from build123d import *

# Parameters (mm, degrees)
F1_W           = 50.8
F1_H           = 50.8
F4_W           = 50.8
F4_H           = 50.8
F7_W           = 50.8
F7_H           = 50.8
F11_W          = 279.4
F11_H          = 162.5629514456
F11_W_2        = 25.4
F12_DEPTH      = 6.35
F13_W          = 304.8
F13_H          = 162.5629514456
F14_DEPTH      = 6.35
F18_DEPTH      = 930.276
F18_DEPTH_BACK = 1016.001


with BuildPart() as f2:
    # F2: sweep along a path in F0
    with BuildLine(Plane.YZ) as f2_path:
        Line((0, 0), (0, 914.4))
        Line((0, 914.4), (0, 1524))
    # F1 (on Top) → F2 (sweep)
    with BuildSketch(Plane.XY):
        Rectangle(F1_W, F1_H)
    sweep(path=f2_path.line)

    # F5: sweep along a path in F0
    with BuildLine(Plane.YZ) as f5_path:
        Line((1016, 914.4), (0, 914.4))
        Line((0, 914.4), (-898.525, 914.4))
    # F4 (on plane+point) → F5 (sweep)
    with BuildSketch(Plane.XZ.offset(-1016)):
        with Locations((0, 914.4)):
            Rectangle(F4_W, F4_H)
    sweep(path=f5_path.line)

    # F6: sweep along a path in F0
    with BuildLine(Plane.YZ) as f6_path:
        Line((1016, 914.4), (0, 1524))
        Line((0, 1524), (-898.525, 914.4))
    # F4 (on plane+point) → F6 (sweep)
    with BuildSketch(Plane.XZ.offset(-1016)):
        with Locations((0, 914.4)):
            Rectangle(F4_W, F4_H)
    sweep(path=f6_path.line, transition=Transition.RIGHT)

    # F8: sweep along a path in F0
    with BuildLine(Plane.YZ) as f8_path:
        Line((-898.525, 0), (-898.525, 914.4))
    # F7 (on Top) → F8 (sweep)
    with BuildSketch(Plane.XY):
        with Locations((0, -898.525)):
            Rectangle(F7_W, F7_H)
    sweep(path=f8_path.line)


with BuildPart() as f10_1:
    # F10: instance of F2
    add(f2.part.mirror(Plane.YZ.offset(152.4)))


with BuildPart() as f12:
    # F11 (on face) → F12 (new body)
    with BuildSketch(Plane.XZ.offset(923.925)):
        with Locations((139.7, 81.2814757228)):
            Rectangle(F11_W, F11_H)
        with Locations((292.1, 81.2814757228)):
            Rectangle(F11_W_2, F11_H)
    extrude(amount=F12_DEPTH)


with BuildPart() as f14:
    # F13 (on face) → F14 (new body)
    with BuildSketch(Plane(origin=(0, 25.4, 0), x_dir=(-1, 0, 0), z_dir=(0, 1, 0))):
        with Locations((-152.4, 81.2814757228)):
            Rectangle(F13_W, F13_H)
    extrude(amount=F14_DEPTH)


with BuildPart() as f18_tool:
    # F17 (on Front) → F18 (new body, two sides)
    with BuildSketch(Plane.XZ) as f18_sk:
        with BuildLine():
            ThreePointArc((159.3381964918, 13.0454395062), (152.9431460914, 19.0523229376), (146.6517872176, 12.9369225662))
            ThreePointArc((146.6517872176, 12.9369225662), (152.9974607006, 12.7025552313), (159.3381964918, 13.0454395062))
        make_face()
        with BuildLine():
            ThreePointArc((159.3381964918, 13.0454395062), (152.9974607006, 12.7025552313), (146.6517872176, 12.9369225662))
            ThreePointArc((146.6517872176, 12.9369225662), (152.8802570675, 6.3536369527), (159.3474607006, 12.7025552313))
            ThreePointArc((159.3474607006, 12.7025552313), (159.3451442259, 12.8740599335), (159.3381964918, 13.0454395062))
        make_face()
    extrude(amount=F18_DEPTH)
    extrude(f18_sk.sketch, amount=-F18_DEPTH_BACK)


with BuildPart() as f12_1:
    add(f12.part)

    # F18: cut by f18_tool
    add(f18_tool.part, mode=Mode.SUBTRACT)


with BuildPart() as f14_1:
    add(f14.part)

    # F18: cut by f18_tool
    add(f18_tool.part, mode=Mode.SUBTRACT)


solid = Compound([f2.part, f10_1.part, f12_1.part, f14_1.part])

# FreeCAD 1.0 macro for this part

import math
import FreeCAD as App
import Part
import Sketcher
from FreeCAD import Vector
Q = App.Units.Quantity


def add_polygon(sketch, points):
    """Adds a closed chain of lines whose ends are joined by coincident constraints."""
    first, n = sketch.GeometryCount, len(points)
    for a, b in zip(points, points[1:] + points[:1]):
        sketch.addGeometry(Part.LineSegment(App.Vector(*a, 0), App.Vector(*b, 0)), False)
    for i in range(n):
        sketch.addConstraint(Sketcher.Constraint("Coincident", first + i, 2, first + (i + 1) % n, 1))

doc = App.newDocument("Part")
body = doc.addObject("PartDesign::Body", "Body")

sketch1 = body.newObject("Sketcher::SketchObject", "Sketch")
sketch1.AttachmentSupport = (doc.getObject("XY_Plane"), [""])
sketch1.MapMode = "FlatFace"
add_polygon(sketch1, [(-25, 25), (-25, -25), (25, -25), (25, 25)])
sketch1.addConstraint(Sketcher.Constraint("Vertical", 0))
sketch1.addConstraint(Sketcher.Constraint("Horizontal", 1))
sketch1.addConstraint(Sketcher.Constraint("Vertical", 2))
sketch1.addConstraint(Sketcher.Constraint("Horizontal", 3))
sketch1.addConstraint(Sketcher.Constraint("Symmetric", 0, 2, 2, 2, -1, 1))
sketch1.addConstraint(Sketcher.Constraint("Equal", 3, 0))
sketch1.addConstraint(Sketcher.Constraint("DistanceX", 1, 1, 1, 2, Q("2 in")))

sketch2 = body.newObject("Sketcher::SketchObject", "Sketch001")
sketch2.AttachmentSupport = (doc.getObject("XZ_Plane"), [""])
sketch2.MapMode = "FlatFace"
sketch2.addGeometry(Part.LineSegment(Vector(0, 0, 0), Vector(0, 1524, 0)), False)
sketch2.addConstraint(Sketcher.Constraint("Vertical", 0))
sketch2.addConstraint(Sketcher.Constraint("Coincident", 0, 1, -1, 1))
sketch2.addConstraint(Sketcher.Constraint("DistanceY", 0, 1, 0, 2, Q("60 in")))
doc.recompute()

additivepipe = body.newObject("PartDesign::AdditivePipe", "AdditivePipe")
additivepipe.Profile = sketch1
additivepipe.Spine = (sketch2, ["Edge1"])

sketch3 = body.newObject("Sketcher::SketchObject", "Sketch002")
sketch3.AttachmentSupport = (doc.getObject("XZ_Plane"), [""])
sketch3.MapMode = "FlatFace"
sketch3.AttachmentOffset = App.Placement(Vector(0, 0, -40 * 25.4), App.Rotation())
add_polygon(sketch3, [(-25, 940), (-25, 889), (25, 889), (25, 940)])
sketch3.addConstraint(Sketcher.Constraint("Vertical", 0))
sketch3.addConstraint(Sketcher.Constraint("Horizontal", 1))
sketch3.addConstraint(Sketcher.Constraint("Vertical", 2))
sketch3.addConstraint(Sketcher.Constraint("Horizontal", 3))
sketch3.addConstraint(Sketcher.Constraint("Equal", 3, 0))
sketch3.addConstraint(Sketcher.Constraint("DistanceX", 1, 1, 1, 2, Q("2 in")))
sketch3.addConstraint(Sketcher.Constraint("DistanceX", 0, 2, -1, 1, Q("1 in")))
sketch3.addConstraint(Sketcher.Constraint("DistanceY", -1, 1, 0, 2, Q("35 in")))

sketch4 = body.newObject("Sketcher::SketchObject", "Sketch003")
sketch4.AttachmentSupport = (doc.getObject("XY_Plane"), [""])
sketch4.MapMode = "FlatFace"
sketch4.AttachmentOffset = App.Placement(Vector(0, 0, 36 * 25.4), App.Rotation())
sketch4.addGeometry(Part.LineSegment(Vector(0, 1016, 0), Vector(0, -899, 0)), False)
sketch4.addConstraint(Sketcher.Constraint("Vertical", 0))
sketch4.addConstraint(Sketcher.Constraint("PointOnObject", 0, 1, -2))
sketch4.addConstraint(Sketcher.Constraint("DistanceY", -1, 1, 0, 1, Q("40 in")))
sketch4.addConstraint(Sketcher.Constraint("DistanceY", 0, 2, 0, 1, Q("75.375 in")))
doc.recompute()

additivepipe2 = body.newObject("PartDesign::AdditivePipe", "AdditivePipe001")
additivepipe2.Profile = sketch3
additivepipe2.Spine = (sketch4, ["Edge1"])

sketch5 = body.newObject("Sketcher::SketchObject", "Sketch004")
sketch5.AttachmentSupport = (doc.getObject("XZ_Plane"), [""])
sketch5.MapMode = "FlatFace"
sketch5.AttachmentOffset = App.Placement(Vector(0, 0, -40 * 25.4), App.Rotation())
add_polygon(sketch5, [(-25, 940), (-25, 889), (25, 889), (25, 940)])
sketch5.addConstraint(Sketcher.Constraint("Vertical", 0))
sketch5.addConstraint(Sketcher.Constraint("Horizontal", 1))
sketch5.addConstraint(Sketcher.Constraint("Vertical", 2))
sketch5.addConstraint(Sketcher.Constraint("Horizontal", 3))
sketch5.addConstraint(Sketcher.Constraint("Equal", 3, 0))
sketch5.addConstraint(Sketcher.Constraint("DistanceX", 1, 1, 1, 2, Q("2 in")))
sketch5.addConstraint(Sketcher.Constraint("DistanceX", 0, 2, -1, 1, Q("1 in")))
sketch5.addConstraint(Sketcher.Constraint("DistanceY", -1, 1, 0, 2, Q("35 in")))

sketch6 = body.newObject("Sketcher::SketchObject", "Sketch005")
sketch6.AttachmentSupport = (doc.getObject("YZ_Plane"), [""])
sketch6.MapMode = "FlatFace"
sketch6.addGeometry(Part.LineSegment(Vector(1016, 914, 0), Vector(0, 1524, 0)), False)
sketch6.addGeometry(Part.LineSegment(Vector(0, 1524, 0), Vector(-899, 914, 0)), False)
sketch6.addConstraint(Sketcher.Constraint("Coincident", 0, 2, 1, 1))
sketch6.addConstraint(Sketcher.Constraint("PointOnObject", 0, 2, -2))
sketch6.addConstraint(Sketcher.Constraint("Horizontal", 0, 1, 1, 2))
sketch6.addConstraint(Sketcher.Constraint("DistanceX", -1, 1, 0, 1, Q("40 in")))
sketch6.addConstraint(Sketcher.Constraint("DistanceY", -1, 1, 0, 1, Q("36 in")))
sketch6.addConstraint(Sketcher.Constraint("DistanceY", -1, 1, 0, 2, Q("60 in")))
sketch6.addConstraint(Sketcher.Constraint("DistanceX", 1, 2, -1, 1, Q("35.375 in")))
doc.recompute()

additivepipe3 = body.newObject("PartDesign::AdditivePipe", "AdditivePipe002")
additivepipe3.Profile = sketch5
additivepipe3.Spine = (sketch6, ["Edge1", "Edge2"])
additivepipe3.Transition = "Right corner"

sketch7 = body.newObject("Sketcher::SketchObject", "Sketch006")
sketch7.AttachmentSupport = (doc.getObject("XY_Plane"), [""])
sketch7.MapMode = "FlatFace"
add_polygon(sketch7, [(-25, -873), (-25, -924), (25, -924), (25, -873)])
sketch7.addConstraint(Sketcher.Constraint("Vertical", 0))
sketch7.addConstraint(Sketcher.Constraint("Horizontal", 1))
sketch7.addConstraint(Sketcher.Constraint("Vertical", 2))
sketch7.addConstraint(Sketcher.Constraint("Horizontal", 3))
sketch7.addConstraint(Sketcher.Constraint("Equal", 3, 0))
sketch7.addConstraint(Sketcher.Constraint("DistanceX", 1, 1, 1, 2, Q("2 in")))
sketch7.addConstraint(Sketcher.Constraint("DistanceX", 0, 2, -1, 1, Q("1 in")))
sketch7.addConstraint(Sketcher.Constraint("DistanceY", 0, 2, -1, 1, Q("36.375 in")))

sketch8 = body.newObject("Sketcher::SketchObject", "Sketch007")
sketch8.AttachmentSupport = (doc.getObject("XZ_Plane"), [""])
sketch8.MapMode = "FlatFace"
sketch8.AttachmentOffset = App.Placement(Vector(0, 0, 35.375 * 25.4), App.Rotation())
sketch8.addGeometry(Part.LineSegment(Vector(0, 0, 0), Vector(0, 914, 0)), False)
sketch8.addConstraint(Sketcher.Constraint("Vertical", 0))
sketch8.addConstraint(Sketcher.Constraint("Coincident", 0, 1, -1, 1))
sketch8.addConstraint(Sketcher.Constraint("DistanceY", 0, 1, 0, 2, Q("36 in")))
doc.recompute()

additivepipe4 = body.newObject("PartDesign::AdditivePipe", "AdditivePipe003")
additivepipe4.Profile = sketch7
additivepipe4.Spine = (sketch8, ["Edge1"])
body2 = doc.addObject("PartDesign::Body", "Body001")
doc.recompute()

mirroring = doc.addObject("Part::Mirroring", "Mirroring")
mirroring.Source = body
mirroring.Base = Vector(152.4, 0, 0)
mirroring.Normal = Vector(1, 0, 0)
body2.BaseFeature = mirroring
doc.recompute()
body3 = doc.addObject("PartDesign::Body", "Body002")

sketch9 = body3.newObject("Sketcher::SketchObject", "Sketch008")
sketch9.AttachmentSupport = (doc.getObject("XZ_Plane002"), [""])
sketch9.MapMode = "FlatFace"
sketch9.AttachmentOffset = App.Placement(Vector(0, 0, 36.375 * 25.4), App.Rotation())
add_polygon(sketch9, [(0, 163), (0, 0), (305, 0), (305, 163)])
sketch9.addConstraint(Sketcher.Constraint("Vertical", 0))
sketch9.addConstraint(Sketcher.Constraint("Horizontal", 1))
sketch9.addConstraint(Sketcher.Constraint("Vertical", 2))
sketch9.addConstraint(Sketcher.Constraint("Horizontal", 3))
sketch9.addConstraint(Sketcher.Constraint("Coincident", 0, 2, -1, 1))
sketch9.addConstraint(Sketcher.Constraint("DistanceX", 1, 1, 1, 2, Q("12 in")))
sketch9.addConstraint(Sketcher.Constraint("DistanceY", 0, 2, 0, 1, Q("162.562951 mm")))
pad1 = body3.newObject("PartDesign::Pad", "Pad")
pad1.Profile = sketch9
pad1.Length = Q("0.25 in")
body4 = doc.addObject("PartDesign::Body", "Body003")

sketch10 = body4.newObject("Sketcher::SketchObject", "Sketch009")
sketch10.AttachmentSupport = (doc.getObject("XZ_Plane003"), [""])
sketch10.MapMode = "FlatFace"
sketch10.AttachmentOffset = App.Placement(Vector(0, 0, -1 * 25.4), App.Rotation())
add_polygon(sketch10, [(305, 163), (305, 0), (0, 0), (0, 163)])
sketch10.addConstraint(Sketcher.Constraint("Vertical", 0))
sketch10.addConstraint(Sketcher.Constraint("Horizontal", 1))
sketch10.addConstraint(Sketcher.Constraint("Vertical", 2))
sketch10.addConstraint(Sketcher.Constraint("Horizontal", 3))
sketch10.addConstraint(Sketcher.Constraint("Coincident", 1, 2, -1, 1))
sketch10.addConstraint(Sketcher.Constraint("DistanceX", 1, 2, 1, 1, Q("12 in")))
sketch10.addConstraint(Sketcher.Constraint("DistanceY", 0, 2, 0, 1, Q("162.562951 mm")))
pad2 = body4.newObject("PartDesign::Pad", "Pad001")
pad2.Profile = sketch10
pad2.Length = Q("0.25 in")
pad2.Reversed = True
body5 = doc.addObject("PartDesign::Body", "Body004")

sketch11 = body5.newObject("Sketcher::SketchObject", "Sketch010")
sketch11.AttachmentSupport = (doc.getObject("XZ_Plane004"), [""])
sketch11.MapMode = "FlatFace"
sketch11.addGeometry(Part.ArcOfCircle(Part.Circle(Vector(153, 12.7, 0), Vector(0, 0, 1), 6.35), math.radians(3), math.radians(178)), False)
sketch11.addGeometry(Part.ArcOfCircle(Part.Circle(Vector(153, 12.7, 0), Vector(0, 0, 1), 6.35), math.radians(178), math.radians(360)), False)
sketch11.addGeometry(Part.ArcOfCircle(Part.Circle(Vector(153, 12.7, 0), Vector(0, 0, 1), 6.35), math.radians(0), math.radians(3.1)), False)
sketch11.addConstraint(Sketcher.Constraint("Tangent", 0, 2, 1, 1))
sketch11.addConstraint(Sketcher.Constraint("Tangent", 1, 2, 2, 1))
sketch11.addConstraint(Sketcher.Constraint("Tangent", 2, 2, 0, 1))
sketch11.addConstraint(Sketcher.Constraint("Horizontal", 2, 3, 1, 2))
sketch11.addConstraint(Sketcher.Constraint("Radius", 0, Q("0.25 in")))
sketch11.addConstraint(Sketcher.Constraint("DistanceY", -1, 1, 2, 2, Q("0.5136 in")))
sketch11.addConstraint(Sketcher.Constraint("DistanceX", -1, 1, 0, 3, Q("152.997461 mm")))
sketch11.addConstraint(Sketcher.Constraint("DistanceX", 0, 2, 2, 2, Q("12.686409 mm")))
sketch11.addConstraint(Sketcher.Constraint("DistanceY", -1, 1, 0, 3, Q("12.702555 mm")))
pad3 = body5.newObject("PartDesign::Pad", "Pad002")
pad3.Profile = sketch11
pad3.Type = "TwoLengths"
pad3.Length = 930.276
pad3.Length2 = 1016.001
doc.recompute()

body6 = doc.addObject("PartDesign::Body", "Body005")
body6.BaseFeature = body5
boolean = body3.newObject("PartDesign::Boolean", "Boolean")
boolean.Type = "Cut"
boolean.addObjects([body6])
doc.recompute()

boolean2 = body4.newObject("PartDesign::Boolean", "Boolean001")
boolean2.Type = "Cut"
boolean2.addObjects([body5])
mirroring.Visibility = False

doc.recompute()
